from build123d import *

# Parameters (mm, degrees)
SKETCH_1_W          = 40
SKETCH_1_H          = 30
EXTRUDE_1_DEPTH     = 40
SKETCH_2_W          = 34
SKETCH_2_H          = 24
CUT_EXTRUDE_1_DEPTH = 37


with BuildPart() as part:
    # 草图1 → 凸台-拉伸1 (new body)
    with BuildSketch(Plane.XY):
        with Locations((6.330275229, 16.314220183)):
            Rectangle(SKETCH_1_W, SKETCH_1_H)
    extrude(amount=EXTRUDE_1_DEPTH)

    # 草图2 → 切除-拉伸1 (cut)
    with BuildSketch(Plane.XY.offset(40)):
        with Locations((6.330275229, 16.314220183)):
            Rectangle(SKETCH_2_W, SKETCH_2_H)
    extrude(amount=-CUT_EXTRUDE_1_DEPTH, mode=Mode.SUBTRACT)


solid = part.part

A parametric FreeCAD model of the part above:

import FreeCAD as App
import Part
import Sketcher
from FreeCAD import Vector


def add_polygon(sketch, points):
    """Adds a closed chain of lines whose ends are joined by coincident constraints."""
    first, n = sketch.GeometryCount, len(points)
    for a, b in zip(points, points[1:] + points[:1]):
        sketch.addGeometry(Part.LineSegment(App.Vector(*a, 0), App.Vector(*b, 0)), False)
    for i in range(n):
        sketch.addConstraint(Sketcher.Constraint("Coincident", first + i, 2, first + (i + 1) % n, 1))

doc = App.newDocument("Part")
params = doc.addObject("Spreadsheet::Sheet", "Params")
for row, (alias, value) in enumerate([
    ("sketch1_width", "40 mm"),
    ("sketch1_height", "30 mm"),
    ("pad1_length", "40 mm"),
    ("sketch2_width", "34 mm"),
    ("sketch2_height", "24 mm"),
    ("pocket1_length", "37 mm"),
], start=1):
    params.set(f"A{row}", alias)
    params.set(f"B{row}", "=" + value)
    params.setAlias(f"B{row}", alias)

body = doc.addObject("PartDesign::Body", "Body")

# Sketch on XY plane
sketch1 = body.newObject("Sketcher::SketchObject", "Sketch")
sketch1.AttachmentSupport = (doc.getObject("XY_Plane"), [""])
sketch1.MapMode = "FlatFace"
add_polygon(sketch1, [(-14, 31), (-14, 1), (26, 1), (26, 31)])  # lines 0-3
sketch1.addConstraint(Sketcher.Constraint("Vertical", 0))
sketch1.addConstraint(Sketcher.Constraint("Horizontal", 1))
sketch1.addConstraint(Sketcher.Constraint("Vertical", 2))
sketch1.addConstraint(Sketcher.Constraint("Horizontal", 3))
sketch1.addConstraint(Sketcher.Constraint("DistanceX", 1, 1, 1, 2, 40.0))
sketch1.addConstraint(Sketcher.Constraint("DistanceY", 0, 2, 0, 1, 30.0))
sketch1.addConstraint(Sketcher.Constraint("DistanceY", -1, 1, 0, 2, 1.31422))
sketch1.addConstraint(Sketcher.Constraint("DistanceX", 0, 2, -1, 1, 13.669725))
sketch1.setExpression("Constraints[8]", "Params.sketch1_width")
sketch1.setExpression("Constraints[9]", "Params.sketch1_height")
pad1 = body.newObject("PartDesign::Pad", "Pad")
pad1.Profile = sketch1
pad1.setExpression("Length", "Params.pad1_length")

# Sketch on XY plane
sketch2 = body.newObject("Sketcher::SketchObject", "Sketch001")
sketch2.AttachmentSupport = (doc.getObject("XY_Plane"), [""])
sketch2.MapMode = "FlatFace"
sketch2.AttachmentOffset = App.Placement(Vector(0, 0, 40), App.Rotation())
add_polygon(sketch2, [(-11, 28), (-11, 4), (23, 4), (23, 28)])  # lines 0-3
sketch2.addConstraint(Sketcher.Constraint("Vertical", 0))
sketch2.addConstraint(Sketcher.Constraint("Horizontal", 1))
sketch2.addConstraint(Sketcher.Constraint("Vertical", 2))
sketch2.addConstraint(Sketcher.Constraint("Horizontal", 3))
sketch2.addConstraint(Sketcher.Constraint("DistanceX", 1, 1, 1, 2, 34.0))
sketch2.addConstraint(Sketcher.Constraint("DistanceY", 0, 2, 0, 1, 24.0))
sketch2.addConstraint(Sketcher.Constraint("DistanceY", -1, 1, 0, 2, 4.31422))
sketch2.addConstraint(Sketcher.Constraint("DistanceX", 0, 2, -1, 1, 10.669725))
sketch2.setExpression("Constraints[8]", "Params.sketch2_width")
sketch2.setExpression("Constraints[9]", "Params.sketch2_height")
pocket1 = body.newObject("PartDesign::Pocket", "Pocket")
pocket1.Profile = sketch2
pocket1.setExpression("Length", "Params.pocket1_length")

doc.recompute()
